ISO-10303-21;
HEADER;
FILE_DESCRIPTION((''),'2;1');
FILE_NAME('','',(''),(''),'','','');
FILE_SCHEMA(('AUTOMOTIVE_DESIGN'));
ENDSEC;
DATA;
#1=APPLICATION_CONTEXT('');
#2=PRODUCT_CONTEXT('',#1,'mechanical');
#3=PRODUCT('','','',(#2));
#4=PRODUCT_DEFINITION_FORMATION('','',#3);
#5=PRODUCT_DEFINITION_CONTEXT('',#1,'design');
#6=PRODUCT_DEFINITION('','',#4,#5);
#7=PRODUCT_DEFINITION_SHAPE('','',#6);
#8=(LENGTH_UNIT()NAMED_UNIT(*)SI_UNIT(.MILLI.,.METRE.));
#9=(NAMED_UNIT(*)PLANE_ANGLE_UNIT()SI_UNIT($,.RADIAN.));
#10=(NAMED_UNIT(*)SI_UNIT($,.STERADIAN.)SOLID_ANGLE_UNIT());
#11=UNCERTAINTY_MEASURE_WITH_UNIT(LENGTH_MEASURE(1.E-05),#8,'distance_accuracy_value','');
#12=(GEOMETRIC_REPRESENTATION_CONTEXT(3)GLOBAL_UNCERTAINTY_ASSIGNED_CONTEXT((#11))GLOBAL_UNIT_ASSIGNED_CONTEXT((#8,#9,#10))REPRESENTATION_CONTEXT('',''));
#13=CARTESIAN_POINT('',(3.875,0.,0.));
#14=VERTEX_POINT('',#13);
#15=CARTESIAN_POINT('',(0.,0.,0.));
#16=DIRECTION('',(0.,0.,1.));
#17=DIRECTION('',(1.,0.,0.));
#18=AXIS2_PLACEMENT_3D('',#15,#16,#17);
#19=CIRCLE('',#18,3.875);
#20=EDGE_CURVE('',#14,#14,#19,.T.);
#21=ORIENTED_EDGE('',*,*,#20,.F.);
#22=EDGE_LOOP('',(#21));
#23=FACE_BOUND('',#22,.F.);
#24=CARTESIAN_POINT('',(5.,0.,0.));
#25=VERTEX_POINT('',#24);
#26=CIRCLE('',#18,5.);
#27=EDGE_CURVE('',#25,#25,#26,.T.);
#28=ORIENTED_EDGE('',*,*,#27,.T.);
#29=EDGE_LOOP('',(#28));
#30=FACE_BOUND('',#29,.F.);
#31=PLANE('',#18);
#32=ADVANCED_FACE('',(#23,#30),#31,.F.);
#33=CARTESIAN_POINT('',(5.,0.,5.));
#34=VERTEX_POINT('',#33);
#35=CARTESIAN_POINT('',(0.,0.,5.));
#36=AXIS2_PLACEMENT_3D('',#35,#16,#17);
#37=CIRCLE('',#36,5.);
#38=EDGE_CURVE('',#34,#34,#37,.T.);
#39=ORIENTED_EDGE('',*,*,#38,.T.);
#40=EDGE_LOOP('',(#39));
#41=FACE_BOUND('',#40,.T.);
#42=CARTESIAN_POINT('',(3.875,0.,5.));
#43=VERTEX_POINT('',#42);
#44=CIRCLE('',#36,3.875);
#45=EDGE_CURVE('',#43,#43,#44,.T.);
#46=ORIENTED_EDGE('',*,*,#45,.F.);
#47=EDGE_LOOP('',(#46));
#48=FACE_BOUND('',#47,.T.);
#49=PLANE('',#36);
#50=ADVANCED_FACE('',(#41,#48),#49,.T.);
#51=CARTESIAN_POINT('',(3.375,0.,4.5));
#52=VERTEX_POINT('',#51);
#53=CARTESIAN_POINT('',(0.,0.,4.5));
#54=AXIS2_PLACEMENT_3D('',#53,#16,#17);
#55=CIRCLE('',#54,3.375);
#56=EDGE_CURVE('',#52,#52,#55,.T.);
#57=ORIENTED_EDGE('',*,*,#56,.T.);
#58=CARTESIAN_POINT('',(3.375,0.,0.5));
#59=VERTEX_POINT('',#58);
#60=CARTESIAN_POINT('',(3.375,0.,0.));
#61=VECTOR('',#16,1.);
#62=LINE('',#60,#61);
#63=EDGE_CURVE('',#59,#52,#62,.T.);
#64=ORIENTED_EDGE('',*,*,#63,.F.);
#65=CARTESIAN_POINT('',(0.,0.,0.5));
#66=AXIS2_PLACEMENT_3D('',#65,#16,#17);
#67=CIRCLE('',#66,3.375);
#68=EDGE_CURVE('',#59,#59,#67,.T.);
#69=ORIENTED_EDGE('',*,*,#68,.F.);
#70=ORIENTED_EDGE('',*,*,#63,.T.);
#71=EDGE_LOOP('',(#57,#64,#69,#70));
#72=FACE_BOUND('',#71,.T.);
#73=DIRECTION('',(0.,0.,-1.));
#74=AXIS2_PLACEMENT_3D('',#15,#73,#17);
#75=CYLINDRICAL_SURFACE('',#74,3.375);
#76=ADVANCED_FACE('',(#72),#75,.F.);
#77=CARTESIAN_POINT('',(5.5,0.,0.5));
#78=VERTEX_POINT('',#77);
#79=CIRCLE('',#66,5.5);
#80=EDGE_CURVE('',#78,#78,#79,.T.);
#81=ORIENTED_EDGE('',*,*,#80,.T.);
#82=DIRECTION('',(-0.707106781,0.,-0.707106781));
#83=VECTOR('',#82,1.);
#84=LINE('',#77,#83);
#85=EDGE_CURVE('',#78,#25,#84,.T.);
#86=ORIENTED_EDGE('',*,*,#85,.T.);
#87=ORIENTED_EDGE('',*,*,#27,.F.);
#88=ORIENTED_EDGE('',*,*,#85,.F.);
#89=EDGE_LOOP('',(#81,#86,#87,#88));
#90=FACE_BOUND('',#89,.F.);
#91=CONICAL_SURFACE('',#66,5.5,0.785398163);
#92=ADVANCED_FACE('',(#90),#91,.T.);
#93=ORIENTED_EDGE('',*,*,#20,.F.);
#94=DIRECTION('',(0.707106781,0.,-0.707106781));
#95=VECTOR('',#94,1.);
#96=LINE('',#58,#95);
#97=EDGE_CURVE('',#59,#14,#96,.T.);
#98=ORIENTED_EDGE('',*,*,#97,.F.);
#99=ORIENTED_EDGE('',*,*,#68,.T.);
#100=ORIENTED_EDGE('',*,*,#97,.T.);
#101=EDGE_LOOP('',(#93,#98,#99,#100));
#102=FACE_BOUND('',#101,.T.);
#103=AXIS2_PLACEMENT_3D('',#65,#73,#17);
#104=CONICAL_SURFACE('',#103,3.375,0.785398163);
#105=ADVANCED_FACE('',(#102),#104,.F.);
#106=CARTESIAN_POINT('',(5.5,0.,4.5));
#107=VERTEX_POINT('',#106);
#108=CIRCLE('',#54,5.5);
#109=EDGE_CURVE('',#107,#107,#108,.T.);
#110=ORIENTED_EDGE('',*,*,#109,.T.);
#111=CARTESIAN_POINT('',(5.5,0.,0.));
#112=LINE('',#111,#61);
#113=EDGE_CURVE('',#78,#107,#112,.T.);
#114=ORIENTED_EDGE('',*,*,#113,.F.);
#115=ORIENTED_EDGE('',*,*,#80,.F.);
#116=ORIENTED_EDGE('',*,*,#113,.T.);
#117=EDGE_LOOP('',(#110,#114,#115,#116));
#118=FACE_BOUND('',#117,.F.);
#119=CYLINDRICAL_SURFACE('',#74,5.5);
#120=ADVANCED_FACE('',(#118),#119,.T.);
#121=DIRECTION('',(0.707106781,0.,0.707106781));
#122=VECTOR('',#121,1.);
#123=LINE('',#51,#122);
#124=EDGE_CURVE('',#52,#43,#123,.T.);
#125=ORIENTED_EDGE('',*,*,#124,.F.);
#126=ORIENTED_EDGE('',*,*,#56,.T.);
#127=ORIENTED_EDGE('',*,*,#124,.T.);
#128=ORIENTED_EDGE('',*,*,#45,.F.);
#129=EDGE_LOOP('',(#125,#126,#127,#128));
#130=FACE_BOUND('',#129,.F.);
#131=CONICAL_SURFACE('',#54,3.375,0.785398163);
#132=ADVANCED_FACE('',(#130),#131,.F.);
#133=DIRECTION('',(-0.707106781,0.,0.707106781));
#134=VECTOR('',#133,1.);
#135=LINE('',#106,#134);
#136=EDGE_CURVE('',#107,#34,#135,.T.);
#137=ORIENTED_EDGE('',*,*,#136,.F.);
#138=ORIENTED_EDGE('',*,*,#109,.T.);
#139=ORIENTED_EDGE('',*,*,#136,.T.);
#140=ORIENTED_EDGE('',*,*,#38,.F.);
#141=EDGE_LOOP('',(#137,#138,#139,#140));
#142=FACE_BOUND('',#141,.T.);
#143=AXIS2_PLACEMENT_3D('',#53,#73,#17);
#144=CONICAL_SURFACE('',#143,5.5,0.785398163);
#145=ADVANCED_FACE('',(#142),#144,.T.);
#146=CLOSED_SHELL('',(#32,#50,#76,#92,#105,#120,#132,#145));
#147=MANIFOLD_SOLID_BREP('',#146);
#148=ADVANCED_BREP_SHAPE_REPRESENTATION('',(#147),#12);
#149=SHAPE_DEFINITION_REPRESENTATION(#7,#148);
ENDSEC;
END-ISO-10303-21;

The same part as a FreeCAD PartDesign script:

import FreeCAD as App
import Part
import Sketcher
from FreeCAD import Vector


def edges_at(feature, points):
    """Names of the edges that pass closest to the given points."""
    edges = feature.Shape.Edges
    near = lambda p: min(range(len(edges)), key=lambda i: edges[i].distToShape(Part.Vertex(*p))[0])
    return sorted({f"Edge{near(p) + 1}" for p in points})

doc = App.newDocument("Part")
params = doc.addObject("Spreadsheet::Sheet", "Params")
for row, (alias, value) in enumerate([
    ("sketch1_diameter", "11 mm"),
    ("sketch1_diameter2", "6.75 mm"),
    ("pad1_length", "5 mm"),
    ("chamfer_size", "0.5 mm"),
], start=1):
    params.set(f"A{row}", alias)
    params.set(f"B{row}", "=" + value)
    params.setAlias(f"B{row}", alias)

body = doc.addObject("PartDesign::Body", "Body")

# Sketch on XY plane
sketch1 = body.newObject("Sketcher::SketchObject", "Sketch")
sketch1.AttachmentSupport = (doc.getObject("XY_Plane"), [""])
sketch1.MapMode = "FlatFace"
sketch1.addGeometry([
    Part.Circle(Vector(0, 0, 0), Vector(0, 0, 1), 5.5),
    Part.Circle(Vector(0, 0, 0), Vector(0, 0, 1), 3.4),
], False)
sketch1.addConstraint([
    Sketcher.Constraint("Coincident", 0, 3, -1, 1),
    Sketcher.Constraint("Coincident", 1, 3, -1, 1),
    Sketcher.Constraint("Diameter", 0, 11.0),
    Sketcher.Constraint("Diameter", 1, 6.75),
])
sketch1.setExpression("Constraints[2]", "Params.sketch1_diameter")
sketch1.setExpression("Constraints[3]", "Params.sketch1_diameter2")
pad1 = body.newObject("PartDesign::Pad", "Pad")
pad1.Profile = sketch1
pad1.setExpression("Length", "Params.pad1_length")
doc.recompute()

chamfer = body.newObject("PartDesign::Chamfer", "Chamfer")
chamfer.Base = (pad1, edges_at(pad1, [
    (-5.5, 0, 0),
    (-3.375, 0, 0),
    (-5.5, 0, 5),
    (-3.375, 0, 5),
]))
chamfer.setExpression("Size", "Params.chamfer_size")

doc.recompute()
